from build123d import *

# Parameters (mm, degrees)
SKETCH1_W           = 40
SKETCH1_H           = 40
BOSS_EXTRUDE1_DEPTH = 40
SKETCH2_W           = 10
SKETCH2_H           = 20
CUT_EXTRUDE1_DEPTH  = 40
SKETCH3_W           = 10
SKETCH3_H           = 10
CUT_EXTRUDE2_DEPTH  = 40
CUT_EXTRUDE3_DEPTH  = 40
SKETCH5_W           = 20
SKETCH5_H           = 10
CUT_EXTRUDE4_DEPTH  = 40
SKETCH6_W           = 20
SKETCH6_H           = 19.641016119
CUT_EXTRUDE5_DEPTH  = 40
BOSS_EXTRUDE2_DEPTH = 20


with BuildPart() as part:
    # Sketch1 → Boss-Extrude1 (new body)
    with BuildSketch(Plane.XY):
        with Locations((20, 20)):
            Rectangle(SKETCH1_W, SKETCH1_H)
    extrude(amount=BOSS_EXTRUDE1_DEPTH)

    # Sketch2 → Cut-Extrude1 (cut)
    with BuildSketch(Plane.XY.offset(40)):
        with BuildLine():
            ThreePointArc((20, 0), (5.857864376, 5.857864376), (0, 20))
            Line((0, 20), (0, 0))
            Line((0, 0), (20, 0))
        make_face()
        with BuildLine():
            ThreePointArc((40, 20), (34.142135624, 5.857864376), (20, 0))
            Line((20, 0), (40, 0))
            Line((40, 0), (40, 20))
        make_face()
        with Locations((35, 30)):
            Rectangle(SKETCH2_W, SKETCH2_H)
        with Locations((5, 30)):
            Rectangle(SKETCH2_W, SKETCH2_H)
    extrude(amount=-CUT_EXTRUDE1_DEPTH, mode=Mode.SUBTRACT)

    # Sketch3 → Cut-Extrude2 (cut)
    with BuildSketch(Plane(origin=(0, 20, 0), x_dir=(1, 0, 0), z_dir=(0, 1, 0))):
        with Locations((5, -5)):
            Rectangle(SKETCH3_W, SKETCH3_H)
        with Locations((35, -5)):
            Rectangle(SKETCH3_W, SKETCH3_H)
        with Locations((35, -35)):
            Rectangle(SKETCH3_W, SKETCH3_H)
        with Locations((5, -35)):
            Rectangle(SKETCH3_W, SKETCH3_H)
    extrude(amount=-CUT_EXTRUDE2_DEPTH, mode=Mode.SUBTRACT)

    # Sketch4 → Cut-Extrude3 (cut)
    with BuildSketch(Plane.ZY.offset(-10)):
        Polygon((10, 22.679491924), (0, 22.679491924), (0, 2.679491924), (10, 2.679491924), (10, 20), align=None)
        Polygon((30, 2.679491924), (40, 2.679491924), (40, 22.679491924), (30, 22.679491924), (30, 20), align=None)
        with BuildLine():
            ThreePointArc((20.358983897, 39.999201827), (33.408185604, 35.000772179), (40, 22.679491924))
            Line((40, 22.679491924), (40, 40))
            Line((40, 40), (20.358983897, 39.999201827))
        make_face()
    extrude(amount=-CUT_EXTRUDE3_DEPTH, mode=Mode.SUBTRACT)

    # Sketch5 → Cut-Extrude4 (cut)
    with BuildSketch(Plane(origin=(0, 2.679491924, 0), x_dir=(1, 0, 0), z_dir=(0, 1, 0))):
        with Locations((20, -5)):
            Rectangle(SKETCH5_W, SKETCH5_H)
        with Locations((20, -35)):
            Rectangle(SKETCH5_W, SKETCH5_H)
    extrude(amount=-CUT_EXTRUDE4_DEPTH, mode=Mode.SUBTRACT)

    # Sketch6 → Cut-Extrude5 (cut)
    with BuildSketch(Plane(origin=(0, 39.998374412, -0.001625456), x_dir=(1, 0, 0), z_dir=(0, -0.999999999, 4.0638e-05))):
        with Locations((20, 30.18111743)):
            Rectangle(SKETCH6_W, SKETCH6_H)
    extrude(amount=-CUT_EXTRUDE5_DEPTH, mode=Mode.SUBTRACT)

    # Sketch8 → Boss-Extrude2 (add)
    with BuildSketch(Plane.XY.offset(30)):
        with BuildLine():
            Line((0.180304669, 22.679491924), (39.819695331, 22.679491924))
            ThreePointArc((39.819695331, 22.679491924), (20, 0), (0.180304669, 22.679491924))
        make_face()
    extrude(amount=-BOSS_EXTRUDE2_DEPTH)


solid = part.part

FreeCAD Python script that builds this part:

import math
import FreeCAD as App
import Part
import Sketcher

V = App.Vector


def add_polygon(sketch, points):
    """Adds a closed chain of lines whose ends are joined by coincident constraints."""
    first, n = sketch.GeometryCount, len(points)
    for a, b in zip(points, points[1:] + points[:1]):
        sketch.addGeometry(Part.LineSegment(App.Vector(*a, 0), App.Vector(*b, 0)), False)
    for i in range(n):
        sketch.addConstraint(Sketcher.Constraint("Coincident", first + i, 2, first + (i + 1) % n, 1))

doc = App.newDocument("Part")
params = doc.addObject("Spreadsheet::Sheet", "Params")
for row, (alias, value) in enumerate([
    ("sketch1_width", "40 mm"),
    ("pad1_length", "40 mm"),
    ("sketch2_radius", "20 mm"),
    ("sketch2_width", "10 mm"),
    ("pocket1_length", "40 mm"),
    ("sketch3_width", "10 mm"),
    ("pocket2_length", "40 mm"),
    ("sketch4_radius", "20 mm"),
    ("sketch4_width", "20 mm"),
    ("sketch4_height", "10 mm"),
    ("pocket3_length", "40 mm"),
    ("sketch5_width", "20 mm"),
    ("sketch5_height", "10 mm"),
    ("pocket4_length", "40 mm"),
    ("sketch6_width", "20 mm"),
    ("pocket5_length", "40 mm"),
    ("sketch7_radius", "20 mm"),
    ("pad2_length", "20 mm"),
], start=1):
    params.set(f"A{row}", alias)
    params.set(f"B{row}", "=" + value)
    params.setAlias(f"B{row}", alias)

body = doc.addObject("PartDesign::Body", "Body")

# Sketch on XY plane
sketch1 = body.newObject("Sketcher::SketchObject", "Sketch")
sketch1.AttachmentSupport = (doc.getObject("XY_Plane"), [""])
sketch1.MapMode = "FlatFace"
add_polygon(sketch1, [(0, 40), (0, 0), (40, 0), (40, 40)])  # lines 0-3
sketch1.addConstraint([
    Sketcher.Constraint("Vertical", 0),
    Sketcher.Constraint("Horizontal", 1),
    Sketcher.Constraint("Vertical", 2),
    Sketcher.Constraint("Horizontal", 3),
    Sketcher.Constraint("Coincident", 0, 2, -1, 1),
    Sketcher.Constraint("Equal", 3, 0),
    Sketcher.Constraint("DistanceX", 1, 1, 1, 2, 40.0),
])
sketch1.setExpression("Constraints[10]", "Params.sketch1_width")
pad1 = body.newObject("PartDesign::Pad", "Pad")
pad1.Profile = sketch1
pad1.setExpression("Length", "Params.pad1_length")

# Sketch on XY plane
sketch2 = body.newObject("Sketcher::SketchObject", "Sketch001")
sketch2.AttachmentSupport = (doc.getObject("XY_Plane"), [""])
sketch2.MapMode = "FlatFace"
sketch2.AttachmentOffset = App.Placement(V(0, 0, 40), App.Rotation())
sketch2.addGeometry(Part.ArcOfCircle(Part.Circle(V(20, 20, 0), V(0, 0, 1), 20), math.radians(180), math.radians(270)), False)  # 0
sketch2.addGeometry(Part.LineSegment(V(0, 20, 0), V(0, 0, 0)), False)  # 1
sketch2.addGeometry(Part.LineSegment(V(0, 0, 0), V(20, 0, 0)), False)  # 2
sketch2.addGeometry(Part.ArcOfCircle(Part.Circle(V(20, 20, 0), V(0, 0, 1), 20), math.radians(-90), math.radians(0)), False)  # 3
sketch2.addGeometry(Part.LineSegment(V(20, 0, 0), V(40, 0, 0)), False)  # 4
sketch2.addGeometry(Part.LineSegment(V(40, 0, 0), V(40, 20, 0)), False)  # 5
add_polygon(sketch2, [(30, 40), (30, 20), (40, 20), (40, 40)])  # lines 6-9
add_polygon(sketch2, [(0, 40), (0, 20), (10, 20), (10, 40)])  # lines 10-13
sketch2.addConstraint([
    Sketcher.Constraint("Tangent", 0, 1, 1, 1),
    Sketcher.Constraint("Coincident", 1, 2, 2, 1),
    Sketcher.Constraint("Tangent", 2, 2, 0, 2),
    Sketcher.Constraint("Tangent", 3, 1, 4, 1),
    Sketcher.Constraint("Coincident", 4, 2, 5, 1),
    Sketcher.Constraint("Tangent", 5, 2, 3, 2),
    Sketcher.Constraint("Vertical", 1),
    Sketcher.Constraint("Horizontal", 2),
    Sketcher.Constraint("Horizontal", 4),
    Sketcher.Constraint("Vertical", 5),
    Sketcher.Constraint("Vertical", 6),
    Sketcher.Constraint("Horizontal", 7),
    Sketcher.Constraint("Vertical", 8),
    Sketcher.Constraint("Horizontal", 9),
    Sketcher.Constraint("Vertical", 10),
    Sketcher.Constraint("Horizontal", 11),
    Sketcher.Constraint("Vertical", 12),
    Sketcher.Constraint("Horizontal", 13),
    Sketcher.Constraint("Coincident", 1, 2, -1, 1),
    Sketcher.Constraint("Coincident", 3, 3, 0, 3),
    Sketcher.Constraint("Coincident", 7, 2, 5, 2),
    Sketcher.Constraint("Coincident", 10, 2, 0, 1),
    Sketcher.Constraint("Equal", 0, 3),
    Sketcher.Constraint("Horizontal", 9, 2, 12, 2),
    Sketcher.Constraint("Equal", 9, 11),
    Sketcher.Constraint("Equal", 5, 6),
    Sketcher.Constraint("Radius", 0, 20.0),
    Sketcher.Constraint("DistanceX", 7, 1, 7, 2, 10.0),
])
sketch2.setExpression("Constraints[34]", "Params.sketch2_radius")
sketch2.setExpression("Constraints[35]", "Params.sketch2_width")
pocket1 = body.newObject("PartDesign::Pocket", "Pocket")
pocket1.Profile = sketch2
pocket1.setExpression("Length", "Params.pocket1_length")

# Sketch on XZ plane
sketch3 = body.newObject("Sketcher::SketchObject", "Sketch002")
sketch3.AttachmentSupport = (doc.getObject("XZ_Plane"), [""])
sketch3.MapMode = "FlatFace"
sketch3.AttachmentOffset = App.Placement(V(0, 0, -20), App.Rotation())
add_polygon(sketch3, [(0, 0), (0, 10), (10, 10), (10, 0)])  # lines 0-3
add_polygon(sketch3, [(30, 0), (30, 10), (40, 10), (40, 0)])  # lines 4-7
add_polygon(sketch3, [(30, 30), (30, 40), (40, 40), (40, 30)])  # lines 8-11
add_polygon(sketch3, [(0, 30), (0, 40), (10, 40), (10, 30)])  # lines 12-15
sketch3.addConstraint([
    Sketcher.Constraint("Vertical", 0),
    Sketcher.Constraint("Horizontal", 1),
    Sketcher.Constraint("Vertical", 2),
    Sketcher.Constraint("Horizontal", 3),
    Sketcher.Constraint("Vertical", 4),
    Sketcher.Constraint("Horizontal", 5),
    Sketcher.Constraint("Vertical", 6),
    Sketcher.Constraint("Horizontal", 7),
    Sketcher.Constraint("Vertical", 8),
    Sketcher.Constraint("Horizontal", 9),
    Sketcher.Constraint("Vertical", 10),
    Sketcher.Constraint("Horizontal", 11),
    Sketcher.Constraint("Vertical", 12),
    Sketcher.Constraint("Horizontal", 13),
    Sketcher.Constraint("Vertical", 14),
    Sketcher.Constraint("Horizontal", 15),
    Sketcher.Constraint("Coincident", 3, 2, -1, 1),
    Sketcher.Constraint("PointOnObject", 6, 2, -1),
    Sketcher.Constraint("PointOnObject", 12, 2, -2),
    Sketcher.Constraint("Horizontal", 1, 2, 4, 2),
    Sketcher.Constraint("Horizontal", 9, 2, 12, 2),
    Sketcher.Constraint("Horizontal", 11, 2, 14, 2),
    Sketcher.Constraint("Vertical", 7, 2, 8, 2),
    Sketcher.Constraint("Vertical", 6, 2, 9, 2),
    Sketcher.Constraint("Vertical", 2, 2, 13, 2),
    Sketcher.Constraint("Equal", 3, 5),
    Sketcher.Constraint("Equal", 15, 0),
    Sketcher.Constraint("Equal", 6, 8),
    Sketcher.Constraint("DistanceX", 1, 1, 1, 2, 10.0),
    Sketcher.Constraint("DistanceX", -1, 1, 4, 2, 30.0),
    Sketcher.Constraint("DistanceY", -1, 1, 8, 2, 40.0),
])
sketch3.setExpression("Constraints[44]", "Params.sketch3_width")
pocket2 = body.newObject("PartDesign::Pocket", "Pocket001")
pocket2.Profile = sketch3
pocket2.setExpression("Length", "Params.pocket2_length")
pocket2.Reversed = True

# Sketch on YZ plane
sketch4 = body.newObject("Sketcher::SketchObject", "Sketch003")
sketch4.AttachmentSupport = (doc.getObject("YZ_Plane"), [""])
sketch4.MapMode = "FlatFace"
sketch4.AttachmentOffset = App.Placement(V(0, 0, 10), App.Rotation())
add_polygon(sketch4, [(23, 10), (23, 0), (3, 0), (3, 10)])  # lines 0-3
add_polygon(sketch4, [(3, 30), (3, 40), (23, 40), (23, 30)])  # lines 4-7
sketch4.addGeometry(Part.ArcOfCircle(Part.Circle(V(20, 20, 0), V(0, 0, 1), 20), math.radians(1), math.radians(82)), False)  # 8
sketch4.addGeometry(Part.LineSegment(V(23, 40, 0), V(40, 40, 0)), False)  # 9
sketch4.addGeometry(Part.LineSegment(V(40, 40, 0), V(40, 20, 0)), False)  # 10
sketch4.addConstraint([
    Sketcher.Constraint("Coincident", 8, 2, 9, 1),
    Sketcher.Constraint("Coincident", 9, 2, 10, 1),
    Sketcher.Constraint("Coincident", 10, 2, 8, 1),
    Sketcher.Constraint("Vertical", 0),
    Sketcher.Constraint("Horizontal", 1),
    Sketcher.Constraint("Vertical", 2),
    Sketcher.Constraint("Horizontal", 3),
    Sketcher.Constraint("Vertical", 4),
    Sketcher.Constraint("Horizontal", 5),
    Sketcher.Constraint("Vertical", 6),
    Sketcher.Constraint("Horizontal", 7),
    Sketcher.Constraint("Horizontal", 9),
    Sketcher.Constraint("Coincident", 8, 2, 5, 2),
    Sketcher.Constraint("PointOnObject", 0, 2, -1),
    Sketcher.Constraint("Vertical", 2, 2, 4, 2),
    Sketcher.Constraint("Vertical", 3, 2, 5, 2),
    Sketcher.Constraint("Equal", 2, 4),
    Sketcher.Constraint("Radius", 8, 20.0),
    Sketcher.Constraint("DistanceX", 1, 2, 1, 1, 20.0),
    Sketcher.Constraint("DistanceY", 0, 2, 0, 1, 10.0),
    Sketcher.Constraint("DistanceX", -1, 1, 8, 3, 20.0),
    Sketcher.Constraint("DistanceY", -1, 1, 4, 2, 40.0),
    Sketcher.Constraint("DistanceX", -1, 1, 9, 2, 40.0),
    Sketcher.Constraint("DistanceX", 9, 1, 9, 2, 17.320508),
    Sketcher.Constraint("DistanceX", -1, 1, 10, 2, 39.999202),
])
sketch4.setExpression("Constraints[25]", "Params.sketch4_radius")
sketch4.setExpression("Constraints[26]", "Params.sketch4_width")
sketch4.setExpression("Constraints[27]", "Params.sketch4_height")
pocket3 = body.newObject("PartDesign::Pocket", "Pocket002")
pocket3.Profile = sketch4
pocket3.setExpression("Length", "Params.pocket3_length")
pocket3.Reversed = True

# Sketch on XZ plane
sketch5 = body.newObject("Sketcher::SketchObject", "Sketch004")
sketch5.AttachmentSupport = (doc.getObject("XZ_Plane"), [""])
sketch5.MapMode = "FlatFace"
sketch5.AttachmentOffset = App.Placement(V(0, 0, -2.679492), App.Rotation())
add_polygon(sketch5, [(10, 0), (10, 10), (30, 10), (30, 0)])  # lines 0-3
add_polygon(sketch5, [(10, 30), (10, 40), (30, 40), (30, 30)])  # lines 4-7
sketch5.addConstraint([
    Sketcher.Constraint("Vertical", 0),
    Sketcher.Constraint("Horizontal", 1),
    Sketcher.Constraint("Vertical", 2),
    Sketcher.Constraint("Horizontal", 3),
    Sketcher.Constraint("Vertical", 4),
    Sketcher.Constraint("Horizontal", 5),
    Sketcher.Constraint("Vertical", 6),
    Sketcher.Constraint("Horizontal", 7),
    Sketcher.Constraint("PointOnObject", 2, 2, -1),
    Sketcher.Constraint("Vertical", 3, 2, 4, 2),
    Sketcher.Constraint("Vertical", 2, 2, 5, 2),
    Sketcher.Constraint("Equal", 2, 4),
    Sketcher.Constraint("DistanceX", 1, 1, 1, 2, 20.0),
    Sketcher.Constraint("DistanceY", 0, 1, 0, 2, 10.0),
    Sketcher.Constraint("DistanceX", -1, 1, 0, 2, 10.0),
    Sketcher.Constraint("DistanceY", -1, 1, 4, 2, 40.0),
])
sketch5.setExpression("Constraints[20]", "Params.sketch5_width")
sketch5.setExpression("Constraints[21]", "Params.sketch5_height")
pocket4 = body.newObject("PartDesign::Pocket", "Pocket003")
pocket4.Profile = sketch5
pocket4.setExpression("Length", "Params.pocket4_length")
pocket4.Reversed = True

# Sketch on XZ plane
sketch6 = body.newObject("Sketcher::SketchObject", "Sketch005")
sketch6.AttachmentSupport = (doc.getObject("XZ_Plane"), [""])
sketch6.MapMode = "FlatFace"
sketch6.AttachmentOffset = App.Placement(V(0, 0, -39.998374), App.Rotation())
add_polygon(sketch6, [(10, 40), (10, 20), (30, 20), (30, 40)])  # lines 0-3
sketch6.addConstraint([
    Sketcher.Constraint("Vertical", 0),
    Sketcher.Constraint("Horizontal", 1),
    Sketcher.Constraint("Vertical", 2),
    Sketcher.Constraint("Horizontal", 3),
    Sketcher.Constraint("DistanceX", 1, 1, 1, 2, 20.0),
    Sketcher.Constraint("DistanceX", -1, 1, 0, 2, 10.0),
    Sketcher.Constraint("DistanceY", -1, 1, 2, 2, 40.0),
    Sketcher.Constraint("DistanceY", 0, 2, 0, 1, 19.641016),
])
sketch6.setExpression("Constraints[8]", "Params.sketch6_width")
pocket5 = body.newObject("PartDesign::Pocket", "Pocket004")
pocket5.Profile = sketch6
pocket5.setExpression("Length", "Params.pocket5_length")

# Sketch on XY plane
sketch7 = body.newObject("Sketcher::SketchObject", "Sketch006")
sketch7.AttachmentSupport = (doc.getObject("XY_Plane"), [""])
sketch7.MapMode = "FlatFace"
sketch7.AttachmentOffset = App.Placement(V(0, 0, 30), App.Rotation())
sketch7.addGeometry([
    Part.LineSegment(V(40, 23, 0), V(0, 23, 0)),
    Part.ArcOfCircle(Part.Circle(V(20, 20, 0), V(0, 0, 1), 20), math.radians(172), math.radians(368)),
], False)
sketch7.addConstraint([
    Sketcher.Constraint("Coincident", 0, 1, 1, 2),
    Sketcher.Constraint("Coincident", 1, 1, 0, 2),
    Sketcher.Constraint("Horizontal", 0),
    Sketcher.Constraint("Radius", 1, 20.0),
    Sketcher.Constraint("DistanceX", -1, 1, 1, 3, 20.0),
    Sketcher.Constraint("DistanceY", -1, 1, 1, 3, 20.0),
    Sketcher.Constraint("DistanceX", 0, 2, 0, 1, 39.639391),
])
sketch7.setExpression("Constraints[3]", "Params.sketch7_radius")
pad2 = body.newObject("PartDesign::Pad", "Pad001")
pad2.Profile = sketch7
pad2.setExpression("Length", "Params.pad2_length")
pad2.Reversed = True

doc.recompute()
